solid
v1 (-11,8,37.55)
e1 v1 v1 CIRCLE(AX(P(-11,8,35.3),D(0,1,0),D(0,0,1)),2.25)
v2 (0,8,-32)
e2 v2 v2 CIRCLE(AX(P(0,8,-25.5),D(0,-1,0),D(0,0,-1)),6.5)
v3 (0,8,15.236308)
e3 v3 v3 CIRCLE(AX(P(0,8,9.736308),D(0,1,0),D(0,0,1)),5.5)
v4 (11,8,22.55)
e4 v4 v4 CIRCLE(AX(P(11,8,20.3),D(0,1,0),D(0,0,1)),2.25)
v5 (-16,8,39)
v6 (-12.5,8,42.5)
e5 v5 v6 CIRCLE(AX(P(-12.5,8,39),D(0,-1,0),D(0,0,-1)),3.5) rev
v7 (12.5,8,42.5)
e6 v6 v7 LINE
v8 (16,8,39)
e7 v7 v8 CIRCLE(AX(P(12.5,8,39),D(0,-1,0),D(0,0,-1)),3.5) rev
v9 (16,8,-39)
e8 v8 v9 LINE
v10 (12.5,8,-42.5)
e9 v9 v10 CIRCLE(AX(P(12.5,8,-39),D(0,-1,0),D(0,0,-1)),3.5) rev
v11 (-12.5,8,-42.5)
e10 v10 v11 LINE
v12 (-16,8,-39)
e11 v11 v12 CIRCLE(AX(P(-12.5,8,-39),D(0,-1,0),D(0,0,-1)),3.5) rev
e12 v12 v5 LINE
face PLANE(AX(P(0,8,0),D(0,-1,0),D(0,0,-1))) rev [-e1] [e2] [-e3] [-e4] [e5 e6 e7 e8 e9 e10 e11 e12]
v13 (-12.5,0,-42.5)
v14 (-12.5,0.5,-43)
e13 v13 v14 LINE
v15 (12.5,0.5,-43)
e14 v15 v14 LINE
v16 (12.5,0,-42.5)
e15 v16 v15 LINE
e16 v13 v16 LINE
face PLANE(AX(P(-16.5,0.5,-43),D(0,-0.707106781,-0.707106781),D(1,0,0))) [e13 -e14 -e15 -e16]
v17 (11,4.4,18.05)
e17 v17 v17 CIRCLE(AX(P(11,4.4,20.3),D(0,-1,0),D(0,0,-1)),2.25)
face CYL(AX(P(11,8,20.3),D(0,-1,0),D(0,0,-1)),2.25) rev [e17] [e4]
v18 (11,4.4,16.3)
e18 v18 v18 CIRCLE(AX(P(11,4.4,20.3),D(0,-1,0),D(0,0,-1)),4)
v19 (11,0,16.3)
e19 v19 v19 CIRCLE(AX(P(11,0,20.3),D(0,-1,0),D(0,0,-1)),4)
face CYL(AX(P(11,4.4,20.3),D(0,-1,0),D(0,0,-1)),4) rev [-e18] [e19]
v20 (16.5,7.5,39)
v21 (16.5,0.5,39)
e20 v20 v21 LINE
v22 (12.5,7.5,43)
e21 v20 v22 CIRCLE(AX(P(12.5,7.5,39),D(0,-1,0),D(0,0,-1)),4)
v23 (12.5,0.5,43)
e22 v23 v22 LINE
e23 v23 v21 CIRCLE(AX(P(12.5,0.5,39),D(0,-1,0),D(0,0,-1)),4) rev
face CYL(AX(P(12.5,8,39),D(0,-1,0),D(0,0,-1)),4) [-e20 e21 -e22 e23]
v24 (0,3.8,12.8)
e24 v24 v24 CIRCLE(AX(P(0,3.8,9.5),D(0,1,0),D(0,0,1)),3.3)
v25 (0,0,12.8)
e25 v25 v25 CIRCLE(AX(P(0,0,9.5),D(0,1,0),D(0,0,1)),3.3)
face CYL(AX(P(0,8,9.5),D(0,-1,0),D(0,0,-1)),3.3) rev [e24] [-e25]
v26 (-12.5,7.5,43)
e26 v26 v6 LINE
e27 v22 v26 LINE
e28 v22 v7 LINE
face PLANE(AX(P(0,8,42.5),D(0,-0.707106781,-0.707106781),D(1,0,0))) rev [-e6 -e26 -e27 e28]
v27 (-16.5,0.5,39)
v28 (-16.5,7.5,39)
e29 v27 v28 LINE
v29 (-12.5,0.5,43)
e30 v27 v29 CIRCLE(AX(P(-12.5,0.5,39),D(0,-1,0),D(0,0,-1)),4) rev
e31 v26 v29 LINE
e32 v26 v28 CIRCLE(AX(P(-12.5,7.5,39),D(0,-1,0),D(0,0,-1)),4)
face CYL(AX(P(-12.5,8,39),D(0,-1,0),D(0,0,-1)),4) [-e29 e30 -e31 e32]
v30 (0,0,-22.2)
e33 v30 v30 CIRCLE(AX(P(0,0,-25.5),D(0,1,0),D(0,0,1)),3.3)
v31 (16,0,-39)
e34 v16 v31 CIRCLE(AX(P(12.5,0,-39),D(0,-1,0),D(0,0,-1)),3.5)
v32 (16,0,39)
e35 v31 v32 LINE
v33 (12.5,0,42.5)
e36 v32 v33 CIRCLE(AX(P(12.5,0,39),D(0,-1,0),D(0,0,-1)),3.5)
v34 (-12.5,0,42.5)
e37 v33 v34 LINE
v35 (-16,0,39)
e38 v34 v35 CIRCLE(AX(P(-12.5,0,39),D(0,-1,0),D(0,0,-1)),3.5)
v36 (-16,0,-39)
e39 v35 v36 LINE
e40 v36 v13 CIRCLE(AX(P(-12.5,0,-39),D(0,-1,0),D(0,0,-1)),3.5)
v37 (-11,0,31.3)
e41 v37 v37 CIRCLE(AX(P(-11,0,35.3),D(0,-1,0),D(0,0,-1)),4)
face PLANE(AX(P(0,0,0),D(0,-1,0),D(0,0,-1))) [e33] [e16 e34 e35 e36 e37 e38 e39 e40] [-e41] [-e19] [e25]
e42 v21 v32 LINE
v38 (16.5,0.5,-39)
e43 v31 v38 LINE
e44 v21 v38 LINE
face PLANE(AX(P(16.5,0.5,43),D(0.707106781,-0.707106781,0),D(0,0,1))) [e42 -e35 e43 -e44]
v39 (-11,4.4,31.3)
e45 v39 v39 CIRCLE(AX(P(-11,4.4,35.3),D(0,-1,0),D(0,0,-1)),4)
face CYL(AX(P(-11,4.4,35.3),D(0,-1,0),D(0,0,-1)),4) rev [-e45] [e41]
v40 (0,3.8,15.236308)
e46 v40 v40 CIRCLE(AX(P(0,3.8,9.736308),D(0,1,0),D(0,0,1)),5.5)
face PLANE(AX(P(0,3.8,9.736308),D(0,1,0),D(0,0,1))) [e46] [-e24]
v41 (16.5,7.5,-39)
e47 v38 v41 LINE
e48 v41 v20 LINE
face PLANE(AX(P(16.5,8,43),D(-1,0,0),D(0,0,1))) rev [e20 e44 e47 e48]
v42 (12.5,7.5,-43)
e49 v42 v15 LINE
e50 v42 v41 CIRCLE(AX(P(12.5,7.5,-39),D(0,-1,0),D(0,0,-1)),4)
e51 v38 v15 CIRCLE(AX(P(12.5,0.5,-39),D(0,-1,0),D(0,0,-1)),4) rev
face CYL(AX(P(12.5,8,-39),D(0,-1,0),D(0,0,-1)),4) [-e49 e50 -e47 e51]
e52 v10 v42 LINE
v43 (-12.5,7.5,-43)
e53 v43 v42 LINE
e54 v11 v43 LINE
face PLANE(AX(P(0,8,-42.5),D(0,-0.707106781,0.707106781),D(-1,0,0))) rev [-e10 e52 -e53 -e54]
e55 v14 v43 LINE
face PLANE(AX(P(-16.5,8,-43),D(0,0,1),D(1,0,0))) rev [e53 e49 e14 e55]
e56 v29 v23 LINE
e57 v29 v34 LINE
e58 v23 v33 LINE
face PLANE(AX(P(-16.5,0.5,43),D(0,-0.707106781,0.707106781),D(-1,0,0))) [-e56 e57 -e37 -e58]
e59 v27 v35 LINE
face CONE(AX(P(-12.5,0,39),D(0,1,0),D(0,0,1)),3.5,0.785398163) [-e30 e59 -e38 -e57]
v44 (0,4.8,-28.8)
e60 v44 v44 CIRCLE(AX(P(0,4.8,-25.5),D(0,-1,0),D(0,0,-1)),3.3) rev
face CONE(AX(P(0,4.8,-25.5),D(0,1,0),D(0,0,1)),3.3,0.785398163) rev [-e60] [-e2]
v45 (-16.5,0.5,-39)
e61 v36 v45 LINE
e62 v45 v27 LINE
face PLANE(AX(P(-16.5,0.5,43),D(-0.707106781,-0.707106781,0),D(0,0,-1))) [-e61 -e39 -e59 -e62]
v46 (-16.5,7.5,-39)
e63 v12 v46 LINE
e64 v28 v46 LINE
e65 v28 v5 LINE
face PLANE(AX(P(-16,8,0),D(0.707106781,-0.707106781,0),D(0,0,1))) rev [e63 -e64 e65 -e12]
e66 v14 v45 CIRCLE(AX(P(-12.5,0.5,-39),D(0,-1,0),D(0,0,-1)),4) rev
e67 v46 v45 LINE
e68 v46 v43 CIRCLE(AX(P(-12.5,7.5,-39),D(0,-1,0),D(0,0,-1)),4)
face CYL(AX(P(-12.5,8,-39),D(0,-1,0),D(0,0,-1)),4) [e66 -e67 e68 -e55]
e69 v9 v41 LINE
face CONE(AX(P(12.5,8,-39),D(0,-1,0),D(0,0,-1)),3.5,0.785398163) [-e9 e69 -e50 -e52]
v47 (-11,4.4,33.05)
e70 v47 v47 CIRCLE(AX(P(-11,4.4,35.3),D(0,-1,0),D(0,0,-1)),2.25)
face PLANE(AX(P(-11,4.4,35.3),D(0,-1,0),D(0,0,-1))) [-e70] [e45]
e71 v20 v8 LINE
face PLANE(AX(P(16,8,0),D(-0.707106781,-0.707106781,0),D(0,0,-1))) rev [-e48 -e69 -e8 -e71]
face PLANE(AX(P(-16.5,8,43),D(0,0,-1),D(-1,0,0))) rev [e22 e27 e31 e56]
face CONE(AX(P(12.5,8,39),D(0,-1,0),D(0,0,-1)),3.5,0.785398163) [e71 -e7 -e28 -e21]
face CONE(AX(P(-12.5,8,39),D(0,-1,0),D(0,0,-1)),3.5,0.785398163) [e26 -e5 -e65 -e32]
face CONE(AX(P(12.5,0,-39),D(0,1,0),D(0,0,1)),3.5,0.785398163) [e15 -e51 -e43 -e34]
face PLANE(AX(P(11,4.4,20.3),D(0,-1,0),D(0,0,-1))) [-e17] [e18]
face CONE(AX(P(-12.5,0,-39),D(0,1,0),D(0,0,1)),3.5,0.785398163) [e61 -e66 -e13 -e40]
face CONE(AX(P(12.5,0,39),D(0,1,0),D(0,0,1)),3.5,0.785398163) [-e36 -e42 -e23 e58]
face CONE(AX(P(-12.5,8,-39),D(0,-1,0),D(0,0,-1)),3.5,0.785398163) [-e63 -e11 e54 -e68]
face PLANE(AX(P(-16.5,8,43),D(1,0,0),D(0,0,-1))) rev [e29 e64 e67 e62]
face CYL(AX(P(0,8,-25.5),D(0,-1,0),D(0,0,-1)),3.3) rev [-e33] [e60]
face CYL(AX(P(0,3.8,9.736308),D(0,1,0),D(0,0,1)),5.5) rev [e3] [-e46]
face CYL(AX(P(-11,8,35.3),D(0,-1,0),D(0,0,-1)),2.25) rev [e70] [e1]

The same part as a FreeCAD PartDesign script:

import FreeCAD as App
import Part
import Sketcher
from FreeCAD import Vector


def edges_at(feature, points):
    """Names of the edges that pass closest to the given points."""
    edges = feature.Shape.Edges
    near = lambda p: min(range(len(edges)), key=lambda i: edges[i].distToShape(Part.Vertex(*p))[0])
    return sorted({f"Edge{near(p) + 1}" for p in points})

doc = App.newDocument("Part")
params = doc.addObject("Spreadsheet::Sheet", "Params")
for row, (alias, value) in enumerate([
    ("sketch1_diameter", "4.5 mm"),
    ("sketch1_diameter2", "6.6 mm"),
    ("sketch1_width", "33 mm"),
    ("sketch1_height", "86 mm"),
    ("pad1_length", "8 mm"),
    ("sketch2_diameter", "11 mm"),
    ("pocket1_length", "4.2 mm"),
    ("chamfer_size", "3.2 mm"),
    ("sketch3_diameter", "8 mm"),
    ("pocket2_length", "4.4 mm"),
    ("fillet_radius", "4 mm"),
    ("chamfer2_size", "0.5 mm"),
], start=1):
    params.set(f"A{row}", alias)
    params.set(f"B{row}", "=" + value)
    params.setAlias(f"B{row}", alias)

body = doc.addObject("PartDesign::Body", "Body")

# Sketch on XZ plane
sketch1 = body.newObject("Sketcher::SketchObject", "Sketch")
sketch1.AttachmentSupport = (doc.getObject("XZ_Plane"), [""])
sketch1.MapMode = "FlatFace"
sketch1.addGeometry(Part.LineSegment(Vector(-16.5, -43, 0), Vector(-16.5, 43, 0)), False)
sketch1.addGeometry(Part.LineSegment(Vector(-16.5, 43, 0), Vector(16.5, 43, 0)), False)
sketch1.addGeometry(Part.LineSegment(Vector(16.5, 43, 0), Vector(16.5, -43, 0)), False)
sketch1.addGeometry(Part.LineSegment(Vector(16.5, -43, 0), Vector(-16.5, -43, 0)), False)
sketch1.addGeometry(Part.Circle(Vector(-11, 35.3, 0), Vector(0, 0, 1), 2.25), False)
sketch1.addGeometry(Part.Circle(Vector(0, 9.5, 0), Vector(0, 0, 1), 3.3), False)
sketch1.addGeometry(Part.Circle(Vector(11, 20.3, 0), Vector(0, 0, 1), 2.25), False)
sketch1.addGeometry(Part.Circle(Vector(0, -25.5, 0), Vector(0, 0, 1), 3.3), False)
sketch1.addConstraint(Sketcher.Constraint("Coincident", 0, 2, 1, 1))
sketch1.addConstraint(Sketcher.Constraint("Coincident", 1, 2, 2, 1))
sketch1.addConstraint(Sketcher.Constraint("Coincident", 2, 2, 3, 1))
sketch1.addConstraint(Sketcher.Constraint("Coincident", 3, 2, 0, 1))
sketch1.addConstraint(Sketcher.Constraint("Vertical", 0))
sketch1.addConstraint(Sketcher.Constraint("Horizontal", 1))
sketch1.addConstraint(Sketcher.Constraint("Vertical", 2))
sketch1.addConstraint(Sketcher.Constraint("Horizontal", 3))
sketch1.addConstraint(Sketcher.Constraint("Equal", 4, 6))
sketch1.addConstraint(Sketcher.Constraint("Equal", 5, 7))
sketch1.addConstraint(Sketcher.Constraint("Symmetric", 0, 2, 2, 2, -1, 1))
sketch1.addConstraint(Sketcher.Constraint("PointOnObject", 5, 3, -2))
sketch1.addConstraint(Sketcher.Constraint("PointOnObject", 7, 3, -2))
sketch1.addConstraint(Sketcher.Constraint("Diameter", 4, 4.5))
sketch1.addConstraint(Sketcher.Constraint("Diameter", 5, 6.6))
sketch1.addConstraint(Sketcher.Constraint("DistanceX", 1, 1, 1, 2, 33.0))
sketch1.addConstraint(Sketcher.Constraint("DistanceY", 0, 1, 0, 2, 86.0))
sketch1.addConstraint(Sketcher.Constraint("DistanceX", 4, 3, -1, 1, 11.0))
sketch1.addConstraint(Sketcher.Constraint("DistanceX", -1, 1, 6, 3, 11.0))
sketch1.addConstraint(Sketcher.Constraint("DistanceY", 6, 3, 4, 3, 15.0))
sketch1.addConstraint(Sketcher.Constraint("DistanceY", 7, 3, 5, 3, 35.0))
sketch1.addConstraint(Sketcher.Constraint("DistanceY", -1, 1, 4, 3, 35.3))
sketch1.addConstraint(Sketcher.Constraint("DistanceY", -1, 1, 5, 3, 9.5))
sketch1.setExpression("Constraints[13]", "Params.sketch1_diameter")
sketch1.setExpression("Constraints[14]", "Params.sketch1_diameter2")
sketch1.setExpression("Constraints[15]", "Params.sketch1_width")
sketch1.setExpression("Constraints[16]", "Params.sketch1_height")
pad1 = body.newObject("PartDesign::Pad", "Pad")
pad1.Profile = sketch1
pad1.setExpression("Length", "Params.pad1_length")
pad1.Reversed = True

# Sketch on XZ plane
sketch2 = body.newObject("Sketcher::SketchObject", "Sketch001")
sketch2.AttachmentSupport = (doc.getObject("XZ_Plane"), [""])
sketch2.MapMode = "FlatFace"
sketch2.AttachmentOffset = App.Placement(Vector(0, 0, -8), App.Rotation())
sketch2.addGeometry(Part.Circle(Vector(0, 9.736308, 0), Vector(0, 0, 1), 5.5), False)
sketch2.addConstraint(Sketcher.Constraint("PointOnObject", 0, 3, -2))
sketch2.addConstraint(Sketcher.Constraint("Diameter", 0, 11.0))
sketch2.addConstraint(Sketcher.Constraint("DistanceY", -1, 1, 0, 3, 9.736308))
sketch2.setExpression("Constraints[1]", "Params.sketch2_diameter")
pocket1 = body.newObject("PartDesign::Pocket", "Pocket")
pocket1.Profile = sketch2
pocket1.setExpression("Length", "Params.pocket1_length")
pocket1.Reversed = True
doc.recompute()

chamfer = body.newObject("PartDesign::Chamfer", "Chamfer")
chamfer.Base = (pocket1, edges_at(pocket1, [(-3.3, 8, -25.5)]))
chamfer.setExpression("Size", "Params.chamfer_size")

# Sketch on XZ plane
sketch3 = body.newObject("Sketcher::SketchObject", "Sketch002")
sketch3.AttachmentSupport = (doc.getObject("XZ_Plane"), [""])
sketch3.MapMode = "FlatFace"
sketch3.addGeometry(Part.Circle(Vector(-11, 35.3, 0), Vector(0, 0, 1), 4), False)
sketch3.addGeometry(Part.Circle(Vector(11, 20.3, 0), Vector(0, 0, 1), 4), False)
sketch3.addConstraint(Sketcher.Constraint("Equal", 0, 1))
sketch3.addConstraint(Sketcher.Constraint("Diameter", 0, 8.0))
sketch3.addConstraint(Sketcher.Constraint("DistanceX", 0, 3, -1, 1, 11.0))
sketch3.addConstraint(Sketcher.Constraint("DistanceX", -1, 1, 1, 3, 11.0))
sketch3.addConstraint(Sketcher.Constraint("DistanceY", 1, 3, 0, 3, 15.0))
sketch3.addConstraint(Sketcher.Constraint("DistanceY", -1, 1, 0, 3, 35.3))
sketch3.setExpression("Constraints[1]", "Params.sketch3_diameter")
pocket2 = body.newObject("PartDesign::Pocket", "Pocket001")
pocket2.Profile = sketch3
pocket2.setExpression("Length", "Params.pocket2_length")
doc.recompute()

fillet = body.newObject("PartDesign::Fillet", "Fillet")
fillet.Base = (pocket2, edges_at(pocket2, [
    (16.5, 4, 43),
    (-16.5, 4, 43),
    (-16.5, 4, -43),
    (16.5, 4, -43),
]))
fillet.setExpression("Radius", "Params.fillet_radius")
doc.recompute()

chamfer2 = body.newObject("PartDesign::Chamfer", "Chamfer001")
chamfer2.Base = (fillet, edges_at(fillet, [
    (16.5, 0, 0),
    (16.5, 8, 0),
    (0, 0, 43),
    (-16.5, 0, 0),
    (0, 0, -43),
    (15.328, 0, -41.828),
    (-15.328, 0, -41.828),
    (-15.328, 0, 41.828),
    (15.328, 0, 41.828),
    (0, 8, 43),
    (0, 8, -43),
    (-16.5, 8, 0),
    (15.328, 8, -41.828),
    (-15.328, 8, -41.828),
    (-15.328, 8, 41.828),
    (15.328, 8, 41.828),
]))
chamfer2.setExpression("Size", "Params.chamfer2_size")

doc.recompute()
